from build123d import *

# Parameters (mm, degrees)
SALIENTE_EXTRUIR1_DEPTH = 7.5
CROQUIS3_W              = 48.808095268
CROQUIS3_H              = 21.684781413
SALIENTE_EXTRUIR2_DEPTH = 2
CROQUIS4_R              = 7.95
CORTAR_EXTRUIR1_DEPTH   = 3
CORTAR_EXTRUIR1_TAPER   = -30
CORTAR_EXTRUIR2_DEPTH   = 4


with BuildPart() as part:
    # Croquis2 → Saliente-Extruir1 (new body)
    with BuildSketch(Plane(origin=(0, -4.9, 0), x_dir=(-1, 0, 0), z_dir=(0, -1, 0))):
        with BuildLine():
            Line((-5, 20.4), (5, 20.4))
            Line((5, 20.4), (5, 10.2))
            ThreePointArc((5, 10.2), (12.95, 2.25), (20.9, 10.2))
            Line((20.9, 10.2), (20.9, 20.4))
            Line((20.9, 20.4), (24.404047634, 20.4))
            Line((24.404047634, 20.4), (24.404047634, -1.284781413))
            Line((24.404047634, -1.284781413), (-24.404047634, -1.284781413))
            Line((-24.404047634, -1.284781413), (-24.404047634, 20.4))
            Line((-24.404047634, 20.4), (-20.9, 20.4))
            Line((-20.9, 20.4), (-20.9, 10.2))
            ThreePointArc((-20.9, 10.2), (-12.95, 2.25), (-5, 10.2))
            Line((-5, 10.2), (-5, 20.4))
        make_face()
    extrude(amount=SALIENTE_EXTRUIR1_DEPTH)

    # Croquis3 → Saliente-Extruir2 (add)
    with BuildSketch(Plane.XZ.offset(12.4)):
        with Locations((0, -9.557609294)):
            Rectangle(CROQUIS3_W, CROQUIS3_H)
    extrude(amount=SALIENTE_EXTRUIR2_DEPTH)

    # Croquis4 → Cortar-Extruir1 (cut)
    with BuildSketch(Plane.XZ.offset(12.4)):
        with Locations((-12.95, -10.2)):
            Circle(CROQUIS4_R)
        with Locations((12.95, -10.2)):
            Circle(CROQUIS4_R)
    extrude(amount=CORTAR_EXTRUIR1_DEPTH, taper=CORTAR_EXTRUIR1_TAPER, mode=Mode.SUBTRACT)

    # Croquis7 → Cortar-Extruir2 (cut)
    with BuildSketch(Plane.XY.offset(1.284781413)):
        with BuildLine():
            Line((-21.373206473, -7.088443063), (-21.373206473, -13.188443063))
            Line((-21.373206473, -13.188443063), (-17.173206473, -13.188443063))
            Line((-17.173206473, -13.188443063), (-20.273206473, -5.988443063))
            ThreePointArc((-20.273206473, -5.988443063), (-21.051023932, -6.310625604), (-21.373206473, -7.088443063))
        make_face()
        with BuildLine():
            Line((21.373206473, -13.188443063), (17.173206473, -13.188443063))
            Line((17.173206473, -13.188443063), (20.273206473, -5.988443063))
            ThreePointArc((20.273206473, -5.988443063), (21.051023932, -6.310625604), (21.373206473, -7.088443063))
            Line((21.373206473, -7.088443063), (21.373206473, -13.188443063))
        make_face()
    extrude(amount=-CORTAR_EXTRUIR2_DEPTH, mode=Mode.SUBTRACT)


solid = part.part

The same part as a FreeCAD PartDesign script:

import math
import FreeCAD as App
import Part
import Sketcher


def add_polygon(sketch, points):
    """Adds a closed chain of lines whose ends are joined by coincident constraints."""
    first, n = sketch.GeometryCount, len(points)
    for a, b in zip(points, points[1:] + points[:1]):
        sketch.addGeometry(Part.LineSegment(App.Vector(*a, 0), App.Vector(*b, 0)), False)
    for i in range(n):
        sketch.addConstraint(Sketcher.Constraint("Coincident", first + i, 2, first + (i + 1) % n, 1))

doc = App.newDocument("Part")
body = doc.addObject("PartDesign::Body", "Body")

# Sketch on XZ plane
sketch1 = body.newObject("Sketcher::SketchObject", "Sketch")
sketch1.AttachmentSupport = (doc.getObject("XZ_Plane"), [""])
sketch1.MapMode = "FlatFace"
sketch1.AttachmentOffset = App.Placement(App.Vector(0, 0, 4.9), App.Rotation())
sketch1.addGeometry(Part.LineSegment(App.Vector(-5, -20.4, 0), App.Vector(5, -20.4, 0)), False)
sketch1.addGeometry(Part.LineSegment(App.Vector(5, -20.4, 0), App.Vector(5, -10.2, 0)), False)
sketch1.addGeometry(Part.ArcOfCircle(Part.Circle(App.Vector(12.9, -10.2, 0), App.Vector(0, 0, 1), 8), math.radians(0), math.radians(180)), False)
sketch1.addGeometry(Part.LineSegment(App.Vector(20.9, -10.2, 0), App.Vector(20.9, -20.4, 0)), False)
sketch1.addGeometry(Part.LineSegment(App.Vector(20.9, -20.4, 0), App.Vector(24.4, -20.4, 0)), False)
sketch1.addGeometry(Part.LineSegment(App.Vector(24.4, -20.4, 0), App.Vector(24.4, 1.3, 0)), False)
sketch1.addGeometry(Part.LineSegment(App.Vector(24.4, 1.3, 0), App.Vector(-24.4, 1.3, 0)), False)
sketch1.addGeometry(Part.LineSegment(App.Vector(-24.4, 1.3, 0), App.Vector(-24.4, -20.4, 0)), False)
sketch1.addGeometry(Part.LineSegment(App.Vector(-24.4, -20.4, 0), App.Vector(-20.9, -20.4, 0)), False)
sketch1.addGeometry(Part.LineSegment(App.Vector(-20.9, -20.4, 0), App.Vector(-20.9, -10.2, 0)), False)
sketch1.addGeometry(Part.ArcOfCircle(Part.Circle(App.Vector(-12.9, -10.2, 0), App.Vector(0, 0, 1), 8), math.radians(0), math.radians(180)), False)
sketch1.addGeometry(Part.LineSegment(App.Vector(-5, -10.2, 0), App.Vector(-5, -20.4, 0)), False)
sketch1.addConstraint(Sketcher.Constraint("Coincident", 0, 2, 1, 1))
sketch1.addConstraint(Sketcher.Constraint("Tangent", 1, 2, 2, 2))
sketch1.addConstraint(Sketcher.Constraint("Tangent", 2, 1, 3, 1))
sketch1.addConstraint(Sketcher.Constraint("Coincident", 3, 2, 4, 1))
sketch1.addConstraint(Sketcher.Constraint("Coincident", 4, 2, 5, 1))
sketch1.addConstraint(Sketcher.Constraint("Coincident", 5, 2, 6, 1))
sketch1.addConstraint(Sketcher.Constraint("Coincident", 6, 2, 7, 1))
sketch1.addConstraint(Sketcher.Constraint("Coincident", 7, 2, 8, 1))
sketch1.addConstraint(Sketcher.Constraint("Coincident", 8, 2, 9, 1))
sketch1.addConstraint(Sketcher.Constraint("Tangent", 9, 2, 10, 2))
sketch1.addConstraint(Sketcher.Constraint("Tangent", 10, 1, 11, 1))
sketch1.addConstraint(Sketcher.Constraint("Coincident", 11, 2, 0, 1))
sketch1.addConstraint(Sketcher.Constraint("Horizontal", 0))
sketch1.addConstraint(Sketcher.Constraint("Vertical", 1))
sketch1.addConstraint(Sketcher.Constraint("Vertical", 3))
sketch1.addConstraint(Sketcher.Constraint("Horizontal", 4))
sketch1.addConstraint(Sketcher.Constraint("Vertical", 5))
sketch1.addConstraint(Sketcher.Constraint("Horizontal", 6))
sketch1.addConstraint(Sketcher.Constraint("Vertical", 7))
sketch1.addConstraint(Sketcher.Constraint("Horizontal", 8))
sketch1.addConstraint(Sketcher.Constraint("Vertical", 9))
sketch1.addConstraint(Sketcher.Constraint("Vertical", 11))
sketch1.addConstraint(Sketcher.Constraint("Equal", 2, 10))
sketch1.addConstraint(Sketcher.Constraint("Symmetric", 2, 3, 10, 3, -2))
sketch1.addConstraint(Sketcher.Constraint("Symmetric", 4, 2, 7, 2, -2))
sketch1.addConstraint(Sketcher.Constraint("Horizontal", 0, 2, 3, 2))
sketch1.addConstraint(Sketcher.Constraint("DistanceX", 0, 1, 0, 2, 10.0))
sketch1.addConstraint(Sketcher.Constraint("Radius", 2, 7.95))
sketch1.addConstraint(Sketcher.Constraint("DistanceY", 1, 1, 1, 2, 10.2))
sketch1.addConstraint(Sketcher.Constraint("DistanceY", 2, 3, -1, 1, 10.2))
sketch1.addConstraint(Sketcher.Constraint("DistanceY", 5, 1, 5, 2, 21.684781))
sketch1.addConstraint(Sketcher.Constraint("DistanceX", 4, 1, 4, 2, 3.504048))
pad1 = body.newObject("PartDesign::Pad", "Pad")
pad1.Profile = sketch1
pad1.Length = 7.5

# Sketch on XZ plane
sketch2 = body.newObject("Sketcher::SketchObject", "Sketch001")
sketch2.AttachmentSupport = (doc.getObject("XZ_Plane"), [""])
sketch2.MapMode = "FlatFace"
sketch2.AttachmentOffset = App.Placement(App.Vector(0, 0, 12.4), App.Rotation())
add_polygon(sketch2, [(-24, 1), (-24, -20), (24, -20), (24, 1)])  # lines 0-3
sketch2.addConstraint(Sketcher.Constraint("Vertical", 0))
sketch2.addConstraint(Sketcher.Constraint("Horizontal", 1))
sketch2.addConstraint(Sketcher.Constraint("Vertical", 2))
sketch2.addConstraint(Sketcher.Constraint("Horizontal", 3))
sketch2.addConstraint(Sketcher.Constraint("DistanceY", 0, 2, -1, 1, 20.4))
sketch2.addConstraint(Sketcher.Constraint("DistanceY", 0, 2, 0, 1, 21.684781))
sketch2.addConstraint(Sketcher.Constraint("DistanceX", 1, 1, 1, 2, 48.808095))
sketch2.addConstraint(Sketcher.Constraint("DistanceX", 0, 2, -1, 1, 24.404048))
pad2 = body.newObject("PartDesign::Pad", "Pad001")
pad2.Profile = sketch2
pad2.Length = 2

# Sketch on XZ plane
sketch3 = body.newObject("Sketcher::SketchObject", "Sketch002")
sketch3.AttachmentSupport = (doc.getObject("XZ_Plane"), [""])
sketch3.MapMode = "FlatFace"
sketch3.AttachmentOffset = App.Placement(App.Vector(0, 0, 12.4), App.Rotation())
sketch3.addGeometry(Part.Circle(App.Vector(-13, -10, 0), App.Vector(0, 0, 1), 8), False)
sketch3.addGeometry(Part.Circle(App.Vector(13, -10, 0), App.Vector(0, 0, 1), 8), False)
sketch3.addConstraint(Sketcher.Constraint("Equal", 0, 1))
sketch3.addConstraint(Sketcher.Constraint("Symmetric", 0, 3, 1, 3, -2))
sketch3.addConstraint(Sketcher.Constraint("Diameter", 0, 15.9))
sketch3.addConstraint(Sketcher.Constraint("DistanceY", 0, 3, -1, 1, 10.2))
sketch3.addConstraint(Sketcher.Constraint("DistanceX", 0, 3, 1, 3, 25.9))
pocket1 = body.newObject("PartDesign::Pocket", "Pocket")
pocket1.Profile = sketch3
pocket1.Length = 3
pocket1.Reversed = True
pocket1.TaperAngle = 30

# Sketch on XY plane
sketch4 = body.newObject("Sketcher::SketchObject", "Sketch003")
sketch4.AttachmentSupport = (doc.getObject("XY_Plane"), [""])
sketch4.MapMode = "FlatFace"
sketch4.AttachmentOffset = App.Placement(App.Vector(0, 0, 1.284781), App.Rotation())
sketch4.addGeometry(Part.LineSegment(App.Vector(-21.4, -7.1, 0), App.Vector(-21.4, -13.2, 0)), False)
sketch4.addGeometry(Part.LineSegment(App.Vector(-21.4, -13.2, 0), App.Vector(-17.2, -13.2, 0)), False)
sketch4.addGeometry(Part.LineSegment(App.Vector(-17.2, -13.2, 0), App.Vector(-20.3, -6, 0)), False)
sketch4.addGeometry(Part.ArcOfCircle(Part.Circle(App.Vector(-20.3, -7.1, 0), App.Vector(0, 0, 1), 1.1), math.radians(90), math.radians(180)), False)
sketch4.addGeometry(Part.LineSegment(App.Vector(17.2, -13.2, 0), App.Vector(21.4, -13.2, 0)), False)
sketch4.addGeometry(Part.LineSegment(App.Vector(21.4, -13.2, 0), App.Vector(21.4, -7.1, 0)), False)
sketch4.addGeometry(Part.ArcOfCircle(Part.Circle(App.Vector(20.3, -7.1, 0), App.Vector(0, 0, 1), 1.1), math.radians(0), math.radians(90)), False)
sketch4.addGeometry(Part.LineSegment(App.Vector(20.3, -6, 0), App.Vector(17.2, -13.2, 0)), False)
sketch4.addConstraint(Sketcher.Constraint("Coincident", 0, 2, 1, 1))
sketch4.addConstraint(Sketcher.Constraint("Coincident", 1, 2, 2, 1))
sketch4.addConstraint(Sketcher.Constraint("Coincident", 2, 2, 3, 1))
sketch4.addConstraint(Sketcher.Constraint("Tangent", 3, 2, 0, 1))
sketch4.addConstraint(Sketcher.Constraint("Coincident", 4, 2, 5, 1))
sketch4.addConstraint(Sketcher.Constraint("Tangent", 5, 2, 6, 1))
sketch4.addConstraint(Sketcher.Constraint("Coincident", 6, 2, 7, 1))
sketch4.addConstraint(Sketcher.Constraint("Coincident", 7, 2, 4, 1))
sketch4.addConstraint(Sketcher.Constraint("Vertical", 0))
sketch4.addConstraint(Sketcher.Constraint("Horizontal", 1))
sketch4.addConstraint(Sketcher.Constraint("Horizontal", 4))
sketch4.addConstraint(Sketcher.Constraint("Vertical", 5))
sketch4.addConstraint(Sketcher.Constraint("Equal", 3, 6))
sketch4.addConstraint(Sketcher.Constraint("Symmetric", 3, 3, 6, 3, -2))
sketch4.addConstraint(Sketcher.Constraint("Symmetric", 1, 2, 7, 2, -2))
sketch4.addConstraint(Sketcher.Constraint("Vertical", 3, 3, 2, 2))
sketch4.addConstraint(Sketcher.Constraint("Equal", 2, 7))
sketch4.addConstraint(Sketcher.Constraint("Radius", 3, 1.1))
sketch4.addConstraint(Sketcher.Constraint("DistanceX", 1, 1, 1, 2, 4.2))
sketch4.addConstraint(Sketcher.Constraint("DistanceY", 0, 2, 0, 1, 6.1))
sketch4.addConstraint(Sketcher.Constraint("DistanceX", 3, 3, -1, 1, 20.273206))
sketch4.addConstraint(Sketcher.Constraint("DistanceY", 3, 3, -1, 1, 7.088443))
pocket2 = body.newObject("PartDesign::Pocket", "Pocket001")
pocket2.Profile = sketch4
pocket2.Length = 4

doc.recompute()
